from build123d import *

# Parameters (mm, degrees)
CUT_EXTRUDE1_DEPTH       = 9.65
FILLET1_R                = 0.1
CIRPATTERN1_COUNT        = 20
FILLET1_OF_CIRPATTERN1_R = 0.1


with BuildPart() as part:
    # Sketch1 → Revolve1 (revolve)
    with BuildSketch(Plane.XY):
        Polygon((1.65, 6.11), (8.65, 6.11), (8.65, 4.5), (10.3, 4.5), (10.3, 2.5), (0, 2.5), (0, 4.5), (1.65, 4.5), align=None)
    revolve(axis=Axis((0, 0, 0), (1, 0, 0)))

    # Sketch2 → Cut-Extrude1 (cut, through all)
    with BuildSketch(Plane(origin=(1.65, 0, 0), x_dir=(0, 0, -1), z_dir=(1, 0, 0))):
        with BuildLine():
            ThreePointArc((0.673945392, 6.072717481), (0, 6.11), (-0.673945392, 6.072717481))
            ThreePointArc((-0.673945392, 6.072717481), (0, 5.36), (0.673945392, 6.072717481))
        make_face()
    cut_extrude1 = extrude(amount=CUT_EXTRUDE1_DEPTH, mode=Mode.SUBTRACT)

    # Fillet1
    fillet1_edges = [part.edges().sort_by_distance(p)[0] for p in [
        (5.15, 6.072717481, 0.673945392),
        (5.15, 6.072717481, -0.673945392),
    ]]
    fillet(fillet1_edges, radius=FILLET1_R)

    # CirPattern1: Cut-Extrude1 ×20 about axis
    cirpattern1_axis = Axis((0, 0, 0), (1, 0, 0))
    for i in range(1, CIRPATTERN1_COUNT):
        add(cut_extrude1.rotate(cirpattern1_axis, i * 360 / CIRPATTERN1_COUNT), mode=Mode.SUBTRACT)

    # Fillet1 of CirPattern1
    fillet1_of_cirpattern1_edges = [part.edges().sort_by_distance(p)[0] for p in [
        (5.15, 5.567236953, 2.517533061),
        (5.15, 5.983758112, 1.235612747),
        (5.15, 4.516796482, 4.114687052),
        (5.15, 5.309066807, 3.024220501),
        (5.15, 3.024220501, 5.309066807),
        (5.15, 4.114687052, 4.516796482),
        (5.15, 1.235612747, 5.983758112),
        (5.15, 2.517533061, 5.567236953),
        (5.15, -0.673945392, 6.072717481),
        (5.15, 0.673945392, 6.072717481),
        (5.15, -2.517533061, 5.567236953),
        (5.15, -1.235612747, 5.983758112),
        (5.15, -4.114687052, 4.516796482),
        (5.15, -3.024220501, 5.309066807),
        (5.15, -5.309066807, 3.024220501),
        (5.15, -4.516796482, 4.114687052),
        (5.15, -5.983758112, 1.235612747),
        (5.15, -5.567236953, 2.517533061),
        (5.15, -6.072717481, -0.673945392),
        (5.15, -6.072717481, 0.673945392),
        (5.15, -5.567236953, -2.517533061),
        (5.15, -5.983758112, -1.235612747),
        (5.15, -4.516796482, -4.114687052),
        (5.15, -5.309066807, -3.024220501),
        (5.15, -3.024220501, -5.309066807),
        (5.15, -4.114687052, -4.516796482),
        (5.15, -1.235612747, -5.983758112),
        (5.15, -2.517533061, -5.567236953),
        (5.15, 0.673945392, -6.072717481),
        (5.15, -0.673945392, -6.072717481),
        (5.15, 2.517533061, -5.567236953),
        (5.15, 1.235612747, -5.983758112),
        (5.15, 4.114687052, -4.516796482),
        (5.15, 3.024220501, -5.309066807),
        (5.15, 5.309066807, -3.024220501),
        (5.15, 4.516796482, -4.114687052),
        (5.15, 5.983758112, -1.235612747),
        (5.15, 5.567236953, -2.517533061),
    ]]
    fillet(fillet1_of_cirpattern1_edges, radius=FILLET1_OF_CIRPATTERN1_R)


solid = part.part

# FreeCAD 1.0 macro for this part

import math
import FreeCAD as App
import Part
import Sketcher
from FreeCAD import Vector
Q = App.Units.Quantity


def edges_at(feature, points):
    """Names of the edges that pass closest to the given points."""
    edges = feature.Shape.Edges
    near = lambda p: min(range(len(edges)), key=lambda i: edges[i].distToShape(Part.Vertex(*p))[0])
    return sorted({f"Edge{near(p) + 1}" for p in points})


def add_polygon(sketch, points):
    """Adds a closed chain of lines whose ends are joined by coincident constraints."""
    first, n = sketch.GeometryCount, len(points)
    for a, b in zip(points, points[1:] + points[:1]):
        sketch.addGeometry(Part.LineSegment(App.Vector(*a, 0), App.Vector(*b, 0)), False)
    for i in range(n):
        sketch.addConstraint(Sketcher.Constraint("Coincident", first + i, 2, first + (i + 1) % n, 1))

doc = App.newDocument("Part")
body = doc.addObject("PartDesign::Body", "Body")

sketch1 = doc.addObject("Sketcher::SketchObject", "Sketch")
body.addObject(sketch1)
sketch1.AttachmentSupport = (doc.XY_Plane, [""])
sketch1.MapMode = "FlatFace"
add_polygon(sketch1, [(8.7, 6.1), (1.6, 6.1), (1.6, 4.5), (0, 4.5), (0, 2.5), (10.3, 2.5), (10.3, 4.5), (8.7, 4.5)])
sketch1.addConstraint(Sketcher.Constraint("Horizontal", 0))
sketch1.addConstraint(Sketcher.Constraint("Vertical", 1))
sketch1.addConstraint(Sketcher.Constraint("Horizontal", 2))
sketch1.addConstraint(Sketcher.Constraint("Vertical", 3))
sketch1.addConstraint(Sketcher.Constraint("Horizontal", 4))
sketch1.addConstraint(Sketcher.Constraint("Vertical", 5))
sketch1.addConstraint(Sketcher.Constraint("Horizontal", 6))
sketch1.addConstraint(Sketcher.Constraint("Vertical", 7))
sketch1.addConstraint(Sketcher.Constraint("PointOnObject", 2, 2, -2))
sketch1.addConstraint(Sketcher.Constraint("Horizontal", 2, 2, 5, 2))
sketch1.addConstraint(Sketcher.Constraint("Equal", 2, 6))
sketch1.addConstraint(Sketcher.Constraint("DistanceX", 0, 2, 0, 1, Q("7 mm")))
sketch1.addConstraint(Sketcher.Constraint("DistanceY", 3, 2, 3, 1, Q("2 mm")))
sketch1.addConstraint(Sketcher.Constraint("DistanceX", 4, 1, 4, 2, Q("10.3 mm")))
sketch1.addConstraint(Sketcher.Constraint("DistanceY", 1, 2, 1, 1, Q("1.61 mm")))
sketch1.addConstraint(Sketcher.Constraint("DistanceY", -1, 1, 1, 2, Q("4.5 mm")))
revolution = doc.addObject("PartDesign::Revolution", "Revolution")
body.addObject(revolution)
revolution.Profile = sketch1
revolution.ReferenceAxis = (sketch1, ["H_Axis"])
revolution.Angle = 360

sketch2 = doc.addObject("Sketcher::SketchObject", "Sketch001")
body.addObject(sketch2)
sketch2.AttachmentSupport = (doc.YZ_Plane, [""])
sketch2.MapMode = "FlatFace"
sketch2.AttachmentOffset = App.Placement(Vector(0, 0, 1.65), App.Rotation())
sketch2.addGeometry(Part.ArcOfCircle(Part.Circle(Vector(0, 0, 0), Vector(0, 0, 1), 6.1), math.radians(-6.33), math.radians(6.33)), False)
sketch2.addGeometry(Part.ArcOfCircle(Part.Circle(Vector(6, 0, 0), Vector(0, 0, 1), 0.7), math.radians(87), math.radians(273)), False)
sketch2.addConstraint(Sketcher.Constraint("Coincident", 0, 1, 1, 2))
sketch2.addConstraint(Sketcher.Constraint("Coincident", 1, 1, 0, 2))
sketch2.addConstraint(Sketcher.Constraint("Coincident", 0, 3, -1, 1))
sketch2.addConstraint(Sketcher.Constraint("PointOnObject", 1, 3, -1))
sketch2.addConstraint(Sketcher.Constraint("Radius", 0, Q("6.11 mm")))
sketch2.addConstraint(Sketcher.Constraint("Radius", 1, Q("0.675 mm")))
sketch2.addConstraint(Sketcher.Constraint("DistanceX", -1, 1, 1, 3, Q("6.035 mm")))
pocket1 = doc.addObject("PartDesign::Pocket", "Pocket")
body.addObject(pocket1)
pocket1.Profile = sketch2
pocket1.Type = "ThroughAll"
pocket1.Reversed = True
doc.recompute()

fillet = doc.addObject("PartDesign::Fillet", "Fillet")
body.addObject(fillet)
fillet.Base = (pocket1, edges_at(pocket1, [(5.15, 6.073, 0.674), (5.15, 6.073, -0.674)]))
fillet.Radius = 0.1
doc.recompute()

polarpattern = doc.addObject("PartDesign::PolarPattern", "PolarPattern")
body.addObject(polarpattern)
polarpattern.Originals = [pocket1]
polarpattern.Axis = (doc.X_Axis, [""])
polarpattern.Angle = 360
polarpattern.Occurrences = 20
body.Tip = polarpattern
doc.recompute()

fillet2 = doc.addObject("PartDesign::Fillet", "Fillet001")
body.addObject(fillet2)
fillet2.Base = (polarpattern, edges_at(polarpattern, [
    (5.15, 5.567, 2.518),
    (5.15, 5.984, 1.236),
    (5.15, 4.517, 4.115),
    (5.15, 5.309, 3.024),
    (5.15, 3.024, 5.309),
    (5.15, 4.115, 4.517),
    (5.15, 1.236, 5.984),
    (5.15, 2.518, 5.567),
    (5.15, -0.674, 6.073),
    (5.15, 0.674, 6.073),
    (5.15, -2.518, 5.567),
    (5.15, -1.236, 5.984),
    (5.15, -4.115, 4.517),
    (5.15, -3.024, 5.309),
    (5.15, -5.309, 3.024),
    (5.15, -4.517, 4.115),
    (5.15, -5.984, 1.236),
    (5.15, -5.567, 2.518),
    (5.15, -6.073, -0.674),
    (5.15, -6.073, 0.674),
    (5.15, -5.567, -2.518),
    (5.15, -5.984, -1.236),
    (5.15, -4.517, -4.115),
    (5.15, -5.309, -3.024),
    (5.15, -3.024, -5.309),
    (5.15, -4.115, -4.517),
    (5.15, -1.236, -5.984),
    (5.15, -2.518, -5.567),
    (5.15, 0.674, -6.073),
    (5.15, -0.674, -6.073),
    (5.15, 2.518, -5.567),
    (5.15, 1.236, -5.984),
    (5.15, 4.115, -4.517),
    (5.15, 3.024, -5.309),
    (5.15, 5.309, -3.024),
    (5.15, 4.517, -4.115),
    (5.15, 5.984, -1.236),
    (5.15, 5.567, -2.518),
]))
fillet2.Radius = 0.1

doc.recompute()
